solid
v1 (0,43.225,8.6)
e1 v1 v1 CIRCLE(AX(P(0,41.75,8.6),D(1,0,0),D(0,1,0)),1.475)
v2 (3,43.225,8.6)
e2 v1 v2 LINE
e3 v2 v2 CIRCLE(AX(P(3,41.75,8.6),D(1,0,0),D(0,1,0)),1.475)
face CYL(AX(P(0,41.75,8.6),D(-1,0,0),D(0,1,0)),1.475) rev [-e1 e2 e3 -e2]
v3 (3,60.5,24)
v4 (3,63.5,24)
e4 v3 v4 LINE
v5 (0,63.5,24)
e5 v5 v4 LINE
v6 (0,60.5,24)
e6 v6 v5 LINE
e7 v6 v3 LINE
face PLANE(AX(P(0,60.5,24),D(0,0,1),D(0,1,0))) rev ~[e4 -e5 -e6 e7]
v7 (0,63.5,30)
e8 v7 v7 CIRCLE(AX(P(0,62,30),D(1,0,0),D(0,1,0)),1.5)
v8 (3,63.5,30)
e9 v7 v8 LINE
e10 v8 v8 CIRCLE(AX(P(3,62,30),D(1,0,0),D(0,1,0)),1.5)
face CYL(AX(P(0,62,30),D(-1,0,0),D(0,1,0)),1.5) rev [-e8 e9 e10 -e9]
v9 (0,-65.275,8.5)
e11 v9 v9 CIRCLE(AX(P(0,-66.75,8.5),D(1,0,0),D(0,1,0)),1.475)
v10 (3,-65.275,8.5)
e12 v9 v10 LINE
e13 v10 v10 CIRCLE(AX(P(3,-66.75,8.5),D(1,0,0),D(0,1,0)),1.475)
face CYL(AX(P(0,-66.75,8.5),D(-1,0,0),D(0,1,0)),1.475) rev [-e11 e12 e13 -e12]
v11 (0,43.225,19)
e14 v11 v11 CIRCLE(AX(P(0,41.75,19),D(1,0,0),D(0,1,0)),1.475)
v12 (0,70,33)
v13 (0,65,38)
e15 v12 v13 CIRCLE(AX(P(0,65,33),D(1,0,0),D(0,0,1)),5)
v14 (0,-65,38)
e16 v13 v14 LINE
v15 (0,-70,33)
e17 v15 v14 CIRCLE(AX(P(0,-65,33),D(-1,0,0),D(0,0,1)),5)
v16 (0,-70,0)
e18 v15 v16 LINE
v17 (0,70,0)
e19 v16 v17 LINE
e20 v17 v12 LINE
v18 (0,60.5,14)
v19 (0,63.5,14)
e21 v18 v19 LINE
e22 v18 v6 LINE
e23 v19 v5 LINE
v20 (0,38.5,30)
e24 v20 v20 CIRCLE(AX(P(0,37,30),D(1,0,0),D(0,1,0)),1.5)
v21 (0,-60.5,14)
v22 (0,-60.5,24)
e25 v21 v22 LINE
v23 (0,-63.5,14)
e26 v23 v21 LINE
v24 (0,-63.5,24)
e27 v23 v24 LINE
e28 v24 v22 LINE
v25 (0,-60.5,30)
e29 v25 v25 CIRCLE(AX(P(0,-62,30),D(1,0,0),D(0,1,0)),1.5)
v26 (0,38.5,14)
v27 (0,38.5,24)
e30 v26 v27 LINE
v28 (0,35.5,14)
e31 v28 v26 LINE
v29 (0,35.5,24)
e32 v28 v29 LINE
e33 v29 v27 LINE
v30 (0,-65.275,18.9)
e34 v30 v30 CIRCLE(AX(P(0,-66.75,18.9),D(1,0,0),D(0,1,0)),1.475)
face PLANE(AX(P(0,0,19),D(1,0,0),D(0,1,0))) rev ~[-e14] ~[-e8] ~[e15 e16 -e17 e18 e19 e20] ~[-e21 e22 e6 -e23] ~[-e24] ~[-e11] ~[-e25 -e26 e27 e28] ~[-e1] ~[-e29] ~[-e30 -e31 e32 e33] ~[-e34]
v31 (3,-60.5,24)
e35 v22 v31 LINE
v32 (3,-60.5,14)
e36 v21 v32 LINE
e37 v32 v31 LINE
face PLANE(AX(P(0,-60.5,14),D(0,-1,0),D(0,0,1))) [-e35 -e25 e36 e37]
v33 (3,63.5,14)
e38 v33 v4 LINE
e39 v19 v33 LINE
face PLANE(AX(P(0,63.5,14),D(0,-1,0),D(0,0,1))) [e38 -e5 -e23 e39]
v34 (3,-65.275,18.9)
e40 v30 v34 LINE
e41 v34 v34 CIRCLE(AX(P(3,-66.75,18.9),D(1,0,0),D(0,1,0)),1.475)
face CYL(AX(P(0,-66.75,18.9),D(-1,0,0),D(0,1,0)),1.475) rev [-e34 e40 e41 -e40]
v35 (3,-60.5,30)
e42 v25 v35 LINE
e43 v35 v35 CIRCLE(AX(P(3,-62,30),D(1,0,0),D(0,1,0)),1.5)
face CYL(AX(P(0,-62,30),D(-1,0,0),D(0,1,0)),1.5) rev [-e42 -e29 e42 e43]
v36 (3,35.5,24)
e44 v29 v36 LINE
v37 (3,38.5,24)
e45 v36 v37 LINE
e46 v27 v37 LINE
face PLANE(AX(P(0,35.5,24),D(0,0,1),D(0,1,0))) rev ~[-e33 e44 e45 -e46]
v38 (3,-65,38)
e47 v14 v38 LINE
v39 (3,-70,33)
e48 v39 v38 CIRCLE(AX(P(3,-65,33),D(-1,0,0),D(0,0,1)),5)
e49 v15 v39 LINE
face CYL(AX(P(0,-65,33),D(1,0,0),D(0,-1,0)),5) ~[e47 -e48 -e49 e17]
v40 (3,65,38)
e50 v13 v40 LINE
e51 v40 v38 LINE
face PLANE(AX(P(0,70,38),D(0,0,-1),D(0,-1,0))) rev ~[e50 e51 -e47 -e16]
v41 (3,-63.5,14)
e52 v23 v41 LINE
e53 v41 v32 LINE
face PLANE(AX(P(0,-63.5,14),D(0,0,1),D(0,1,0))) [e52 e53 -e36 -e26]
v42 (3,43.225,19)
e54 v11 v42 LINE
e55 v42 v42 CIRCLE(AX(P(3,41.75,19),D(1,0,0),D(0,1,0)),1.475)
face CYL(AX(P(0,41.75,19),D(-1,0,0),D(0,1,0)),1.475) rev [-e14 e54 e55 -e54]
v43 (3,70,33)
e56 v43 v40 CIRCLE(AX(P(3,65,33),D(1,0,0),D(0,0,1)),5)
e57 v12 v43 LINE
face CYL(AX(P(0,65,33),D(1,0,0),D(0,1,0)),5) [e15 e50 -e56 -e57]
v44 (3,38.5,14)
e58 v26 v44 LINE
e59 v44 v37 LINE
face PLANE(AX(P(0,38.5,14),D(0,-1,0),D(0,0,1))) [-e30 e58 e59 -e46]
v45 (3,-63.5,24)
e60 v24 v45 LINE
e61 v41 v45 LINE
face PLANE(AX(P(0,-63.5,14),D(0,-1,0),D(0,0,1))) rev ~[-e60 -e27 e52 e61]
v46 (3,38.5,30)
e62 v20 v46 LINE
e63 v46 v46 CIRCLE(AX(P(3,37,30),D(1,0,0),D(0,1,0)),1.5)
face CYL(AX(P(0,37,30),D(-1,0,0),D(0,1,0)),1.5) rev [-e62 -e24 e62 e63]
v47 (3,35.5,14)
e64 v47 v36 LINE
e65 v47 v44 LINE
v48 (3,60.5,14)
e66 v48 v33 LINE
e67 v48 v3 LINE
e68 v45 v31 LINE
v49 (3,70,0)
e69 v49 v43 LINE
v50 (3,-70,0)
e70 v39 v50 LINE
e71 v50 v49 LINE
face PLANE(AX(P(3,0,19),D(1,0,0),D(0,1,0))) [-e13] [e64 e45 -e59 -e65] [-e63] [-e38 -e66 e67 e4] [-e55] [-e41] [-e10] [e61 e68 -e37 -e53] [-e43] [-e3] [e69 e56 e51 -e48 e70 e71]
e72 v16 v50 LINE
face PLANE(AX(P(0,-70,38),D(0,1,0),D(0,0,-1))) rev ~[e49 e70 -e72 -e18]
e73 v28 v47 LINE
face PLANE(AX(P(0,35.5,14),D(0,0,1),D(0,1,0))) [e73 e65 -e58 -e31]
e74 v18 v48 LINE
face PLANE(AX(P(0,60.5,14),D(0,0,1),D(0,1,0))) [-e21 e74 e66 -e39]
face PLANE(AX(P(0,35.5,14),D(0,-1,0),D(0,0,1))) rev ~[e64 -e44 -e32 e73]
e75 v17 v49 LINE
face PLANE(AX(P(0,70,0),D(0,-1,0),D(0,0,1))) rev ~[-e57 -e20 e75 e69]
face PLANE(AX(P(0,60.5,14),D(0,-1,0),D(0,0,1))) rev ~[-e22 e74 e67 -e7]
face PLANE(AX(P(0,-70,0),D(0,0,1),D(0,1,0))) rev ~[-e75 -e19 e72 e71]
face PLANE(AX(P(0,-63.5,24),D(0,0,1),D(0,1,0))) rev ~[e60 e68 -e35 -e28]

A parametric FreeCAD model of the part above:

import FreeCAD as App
import Part
import Sketcher
from FreeCAD import Vector
Q = App.Units.Quantity


def edges_at(feature, points):
    """Names of the edges that pass closest to the given points."""
    edges = feature.Shape.Edges
    near = lambda p: min(range(len(edges)), key=lambda i: edges[i].distToShape(Part.Vertex(*p))[0])
    return sorted({f"Edge{near(p) + 1}" for p in points})

doc = App.newDocument("Part")
params = doc.addObject("Spreadsheet::Sheet", "Params")
for row, (alias, value) in enumerate([
    ("sketch1_diameter", "3 mm"),
    ("sketch1_diameter2", "2.95 mm"),
    ("sketch1_width", "140 mm"),
    ("sketch1_width2", "3 mm"),
    ("sketch1_height", "38 mm"),
    ("pad1_length", "3 mm"),
    ("fillet_radius", "5 mm"),
], start=1):
    params.set(f"A{row}", alias)
    params.set(f"B{row}", "=" + value)
    params.setAlias(f"B{row}", alias)

body = doc.addObject("PartDesign::Body", "Body")

sketch1 = doc.addObject("Sketcher::SketchObject", "Sketch")
body.addObject(sketch1)
sketch1.AttachmentSupport = (doc.YZ_Plane, [""])
sketch1.MapMode = "FlatFace"
sketch1.addGeometry([
    Part.LineSegment(Vector(-70, 0, 0), Vector(70, 0, 0)),
    Part.LineSegment(Vector(70, 0, 0), Vector(70, 38, 0)),
    Part.LineSegment(Vector(70, 38, 0), Vector(-70, 38, 0)),
    Part.LineSegment(Vector(-70, 38, 0), Vector(-70, 0, 0)),
    Part.Circle(Vector(-66.75, 8.5, 0), Vector(0, 0, 1), 1.475),
    Part.Circle(Vector(-66.75, 18.9, 0), Vector(0, 0, 1), 1.475),
    Part.LineSegment(Vector(-60.5, 14, 0), Vector(-63.5, 14, 0)),
    Part.LineSegment(Vector(-63.5, 14, 0), Vector(-63.5, 24, 0)),
    Part.LineSegment(Vector(-63.5, 24, 0), Vector(-60.5, 24, 0)),
    Part.LineSegment(Vector(-60.5, 24, 0), Vector(-60.5, 14, 0)),
    Part.Circle(Vector(41.75, 8.6, 0), Vector(0, 0, 1), 1.475),
    Part.LineSegment(Vector(38.5, 14, 0), Vector(35.5, 14, 0)),
    Part.LineSegment(Vector(35.5, 14, 0), Vector(35.5, 24, 0)),
    Part.LineSegment(Vector(35.5, 24, 0), Vector(38.5, 24, 0)),
    Part.LineSegment(Vector(38.5, 24, 0), Vector(38.5, 14, 0)),
    Part.Circle(Vector(41.75, 19, 0), Vector(0, 0, 1), 1.475),
    Part.LineSegment(Vector(63.5, 14, 0), Vector(60.5, 14, 0)),
    Part.LineSegment(Vector(60.5, 14, 0), Vector(60.5, 24, 0)),
    Part.LineSegment(Vector(60.5, 24, 0), Vector(63.5, 24, 0)),
    Part.LineSegment(Vector(63.5, 24, 0), Vector(63.5, 14, 0)),
    Part.Circle(Vector(-62, 30, 0), Vector(0, 0, 1), 1.5),
    Part.Circle(Vector(37, 30, 0), Vector(0, 0, 1), 1.5),
    Part.Circle(Vector(62, 30, 0), Vector(0, 0, 1), 1.5),
], False)
sketch1.addConstraint([
    Sketcher.Constraint("Coincident", 0, 2, 1, 1),
    Sketcher.Constraint("Coincident", 1, 2, 2, 1),
    Sketcher.Constraint("Coincident", 2, 2, 3, 1),
    Sketcher.Constraint("Coincident", 3, 2, 0, 1),
    Sketcher.Constraint("Coincident", 6, 2, 7, 1),
    Sketcher.Constraint("Coincident", 7, 2, 8, 1),
    Sketcher.Constraint("Coincident", 8, 2, 9, 1),
    Sketcher.Constraint("Coincident", 9, 2, 6, 1),
    Sketcher.Constraint("Coincident", 11, 2, 12, 1),
    Sketcher.Constraint("Coincident", 12, 2, 13, 1),
    Sketcher.Constraint("Coincident", 13, 2, 14, 1),
    Sketcher.Constraint("Coincident", 14, 2, 11, 1),
    Sketcher.Constraint("Coincident", 16, 2, 17, 1),
    Sketcher.Constraint("Coincident", 17, 2, 18, 1),
    Sketcher.Constraint("Coincident", 18, 2, 19, 1),
    Sketcher.Constraint("Coincident", 19, 2, 16, 1),
    Sketcher.Constraint("Horizontal", 0),
    Sketcher.Constraint("Vertical", 1),
    Sketcher.Constraint("Horizontal", 2),
    Sketcher.Constraint("Vertical", 3),
    Sketcher.Constraint("Horizontal", 6),
    Sketcher.Constraint("Vertical", 7),
    Sketcher.Constraint("Horizontal", 8),
    Sketcher.Constraint("Vertical", 9),
    Sketcher.Constraint("Horizontal", 11),
    Sketcher.Constraint("Vertical", 12),
    Sketcher.Constraint("Horizontal", 13),
    Sketcher.Constraint("Vertical", 14),
    Sketcher.Constraint("Horizontal", 16),
    Sketcher.Constraint("Vertical", 17),
    Sketcher.Constraint("Horizontal", 18),
    Sketcher.Constraint("Vertical", 19),
    Sketcher.Constraint("Equal", 4, 5),
    Sketcher.Constraint("Equal", 5, 10),
    Sketcher.Constraint("Equal", 10, 15),
    Sketcher.Constraint("Equal", 20, 21),
    Sketcher.Constraint("Equal", 21, 22),
    Sketcher.Constraint("Symmetric", 0, 2, 3, 2, -1, 1),
    Sketcher.Constraint("Symmetric", 20, 3, 22, 3, -2),
    Sketcher.Constraint("Symmetric", 9, 2, 16, 2, -2),
    Sketcher.Constraint("Symmetric", 7, 2, 18, 2, -2),
    Sketcher.Constraint("Horizontal", 20, 3, 21, 3),
    Sketcher.Constraint("Horizontal", 9, 2, 11, 2),
    Sketcher.Constraint("Horizontal", 8, 2, 12, 2),
    Sketcher.Constraint("Vertical", 4, 3, 5, 3),
    Sketcher.Constraint("Vertical", 10, 3, 15, 3),
    Sketcher.Constraint("Equal", 8, 11),
    Sketcher.Constraint("Diameter", 20, Q("3 mm")),
    Sketcher.Constraint("Diameter", 4, Q("2.95 mm")),
    Sketcher.Constraint("DistanceX", 0, 1, 0, 2, Q("140 mm")),
    Sketcher.Constraint("DistanceX", 6, 2, 6, 1, Q("3 mm")),
    Sketcher.Constraint("DistanceY", 1, 1, 1, 2, Q("38 mm")),
    Sketcher.Constraint("DistanceY", 7, 1, 7, 2, Q("10 mm")),
    Sketcher.Constraint("DistanceY", -1, 1, 15, 3, Q("19 mm")),
    Sketcher.Constraint("DistanceX", 20, 3, -1, 1, Q("62 mm")),
    Sketcher.Constraint("DistanceY", -1, 1, 20, 3, Q("30 mm")),
    Sketcher.Constraint("DistanceX", -1, 1, 21, 3, Q("37 mm")),
    Sketcher.Constraint("DistanceY", -1, 1, 6, 2, Q("14 mm")),
    Sketcher.Constraint("DistanceX", 14, 2, 16, 2, Q("22 mm")),
    Sketcher.Constraint("DistanceY", -1, 1, 4, 3, Q("8.5 mm")),
    Sketcher.Constraint("DistanceY", -1, 1, 5, 3, Q("18.9 mm")),
    Sketcher.Constraint("DistanceY", -1, 1, 10, 3, Q("8.6 mm")),
    Sketcher.Constraint("DistanceX", 6, 2, -1, 1, Q("63.5 mm")),
    Sketcher.Constraint("DistanceX", 4, 3, 10, 3, Q("108.5 mm")),
    Sketcher.Constraint("DistanceX", 4, 3, -1, 1, Q("66.75 mm")),
])
sketch1.setExpression("Constraints[47]", "Params.sketch1_diameter")
sketch1.setExpression("Constraints[48]", "Params.sketch1_diameter2")
sketch1.setExpression("Constraints[49]", "Params.sketch1_width")
sketch1.setExpression("Constraints[50]", "Params.sketch1_width2")
sketch1.setExpression("Constraints[51]", "Params.sketch1_height")
pad1 = doc.addObject("PartDesign::Pad", "Pad")
body.addObject(pad1)
pad1.Profile = sketch1
pad1.setExpression("Length", "Params.pad1_length")
doc.recompute()

fillet = doc.addObject("PartDesign::Fillet", "Fillet")
body.addObject(fillet)
fillet.Base = (pad1, edges_at(pad1, [(1.5, 70, 38), (1.5, -70, 38)]))
fillet.setExpression("Radius", "Params.fillet_radius")

doc.recompute()
